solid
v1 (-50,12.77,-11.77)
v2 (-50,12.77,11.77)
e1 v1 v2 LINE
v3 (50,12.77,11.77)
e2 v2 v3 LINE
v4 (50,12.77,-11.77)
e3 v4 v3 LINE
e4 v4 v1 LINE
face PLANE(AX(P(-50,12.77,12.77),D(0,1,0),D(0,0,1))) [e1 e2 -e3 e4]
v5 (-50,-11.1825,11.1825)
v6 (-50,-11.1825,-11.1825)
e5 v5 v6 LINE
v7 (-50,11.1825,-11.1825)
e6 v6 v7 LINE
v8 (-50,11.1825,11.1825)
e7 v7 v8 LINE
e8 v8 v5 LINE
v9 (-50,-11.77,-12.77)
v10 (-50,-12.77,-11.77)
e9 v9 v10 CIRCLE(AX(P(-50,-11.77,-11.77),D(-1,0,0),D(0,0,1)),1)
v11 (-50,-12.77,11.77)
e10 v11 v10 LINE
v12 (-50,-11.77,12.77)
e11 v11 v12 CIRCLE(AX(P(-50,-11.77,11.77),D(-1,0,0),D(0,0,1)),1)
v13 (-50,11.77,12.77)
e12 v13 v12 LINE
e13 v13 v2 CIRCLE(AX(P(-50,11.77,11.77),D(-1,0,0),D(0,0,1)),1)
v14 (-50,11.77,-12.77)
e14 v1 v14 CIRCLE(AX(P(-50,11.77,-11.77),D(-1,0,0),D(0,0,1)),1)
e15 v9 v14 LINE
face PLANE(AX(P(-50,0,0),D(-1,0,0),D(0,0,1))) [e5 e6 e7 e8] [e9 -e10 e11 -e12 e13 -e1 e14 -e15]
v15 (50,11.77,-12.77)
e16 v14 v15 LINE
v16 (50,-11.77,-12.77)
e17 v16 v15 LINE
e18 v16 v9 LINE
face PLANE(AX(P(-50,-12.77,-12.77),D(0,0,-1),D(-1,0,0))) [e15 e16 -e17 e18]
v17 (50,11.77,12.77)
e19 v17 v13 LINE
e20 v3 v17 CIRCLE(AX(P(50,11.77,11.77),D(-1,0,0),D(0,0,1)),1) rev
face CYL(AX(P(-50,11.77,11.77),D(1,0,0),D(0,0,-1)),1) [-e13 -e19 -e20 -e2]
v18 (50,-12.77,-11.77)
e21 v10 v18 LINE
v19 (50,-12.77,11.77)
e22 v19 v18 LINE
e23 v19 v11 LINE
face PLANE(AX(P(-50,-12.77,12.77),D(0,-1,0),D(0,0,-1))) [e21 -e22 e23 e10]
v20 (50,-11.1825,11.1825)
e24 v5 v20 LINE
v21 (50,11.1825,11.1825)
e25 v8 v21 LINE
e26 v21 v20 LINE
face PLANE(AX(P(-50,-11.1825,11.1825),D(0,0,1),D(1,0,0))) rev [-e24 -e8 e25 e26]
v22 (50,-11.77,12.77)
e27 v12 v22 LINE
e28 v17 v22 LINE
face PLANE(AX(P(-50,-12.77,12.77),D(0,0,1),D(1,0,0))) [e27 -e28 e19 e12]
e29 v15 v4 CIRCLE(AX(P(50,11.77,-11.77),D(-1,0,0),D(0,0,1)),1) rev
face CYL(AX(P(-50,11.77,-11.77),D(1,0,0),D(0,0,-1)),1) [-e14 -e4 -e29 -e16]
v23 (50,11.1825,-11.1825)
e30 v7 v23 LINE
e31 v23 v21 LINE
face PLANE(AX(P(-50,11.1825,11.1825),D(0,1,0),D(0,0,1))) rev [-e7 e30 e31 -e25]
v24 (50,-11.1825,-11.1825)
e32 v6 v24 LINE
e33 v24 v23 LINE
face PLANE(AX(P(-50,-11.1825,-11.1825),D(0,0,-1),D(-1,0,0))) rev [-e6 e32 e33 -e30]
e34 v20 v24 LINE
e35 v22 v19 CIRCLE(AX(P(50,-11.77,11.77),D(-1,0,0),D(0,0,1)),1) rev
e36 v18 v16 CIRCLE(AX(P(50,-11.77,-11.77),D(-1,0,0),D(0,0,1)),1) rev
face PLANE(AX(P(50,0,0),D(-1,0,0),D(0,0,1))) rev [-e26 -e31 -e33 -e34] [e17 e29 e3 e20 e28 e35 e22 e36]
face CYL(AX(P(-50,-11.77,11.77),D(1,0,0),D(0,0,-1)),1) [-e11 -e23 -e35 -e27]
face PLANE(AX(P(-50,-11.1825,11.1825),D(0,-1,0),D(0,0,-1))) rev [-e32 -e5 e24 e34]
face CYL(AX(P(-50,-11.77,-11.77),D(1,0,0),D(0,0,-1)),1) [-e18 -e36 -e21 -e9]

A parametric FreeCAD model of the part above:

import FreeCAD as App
import Part
import Sketcher
from FreeCAD import Vector
Q = App.Units.Quantity


def edges_at(feature, points):
    """Names of the edges that pass closest to the given points."""
    edges = feature.Shape.Edges
    near = lambda p: min(range(len(edges)), key=lambda i: edges[i].distToShape(Part.Vertex(*p))[0])
    return sorted({f"Edge{near(p) + 1}" for p in points})

doc = App.newDocument("Part")
params = doc.addObject("Spreadsheet::Sheet", "Params")
for row, (alias, value) in enumerate([
    ("sketch1_width", "25.54 mm"),
    ("pad1_length", "50 mm"),
    ("pad1_length2", "50 mm"),
    ("fillet_radius", "1 mm"),
], start=1):
    params.set(f"A{row}", alias)
    params.set(f"B{row}", "=" + value)
    params.setAlias(f"B{row}", alias)

body = doc.addObject("PartDesign::Body", "Body")

# Sketch on YZ plane
sketch1 = body.newObject("Sketcher::SketchObject", "Sketch")
sketch1.AttachmentSupport = (doc.getObject("YZ_Plane"), [""])
sketch1.MapMode = "FlatFace"
sketch1.addGeometry(Part.LineSegment(Vector(13, 13, 0), Vector(-13, 13, 0)), False)
sketch1.addGeometry(Part.LineSegment(Vector(-13, 13, 0), Vector(-13, -13, 0)), False)
sketch1.addGeometry(Part.LineSegment(Vector(-13, -13, 0), Vector(13, -13, 0)), False)
sketch1.addGeometry(Part.LineSegment(Vector(13, -13, 0), Vector(13, 13, 0)), False)
sketch1.addGeometry(Part.LineSegment(Vector(-11, -11, 0), Vector(-11, 11, 0)), False)
sketch1.addGeometry(Part.LineSegment(Vector(-11, 11, 0), Vector(11, 11, 0)), False)
sketch1.addGeometry(Part.LineSegment(Vector(11, 11, 0), Vector(11, -11, 0)), False)
sketch1.addGeometry(Part.LineSegment(Vector(11, -11, 0), Vector(-11, -11, 0)), False)
sketch1.addConstraint(Sketcher.Constraint("Coincident", 0, 2, 1, 1))
sketch1.addConstraint(Sketcher.Constraint("Coincident", 1, 2, 2, 1))
sketch1.addConstraint(Sketcher.Constraint("Coincident", 2, 2, 3, 1))
sketch1.addConstraint(Sketcher.Constraint("Coincident", 3, 2, 0, 1))
sketch1.addConstraint(Sketcher.Constraint("Coincident", 4, 2, 5, 1))
sketch1.addConstraint(Sketcher.Constraint("Coincident", 5, 2, 6, 1))
sketch1.addConstraint(Sketcher.Constraint("Coincident", 6, 2, 7, 1))
sketch1.addConstraint(Sketcher.Constraint("Coincident", 7, 2, 4, 1))
sketch1.addConstraint(Sketcher.Constraint("Horizontal", 0))
sketch1.addConstraint(Sketcher.Constraint("Vertical", 1))
sketch1.addConstraint(Sketcher.Constraint("Horizontal", 2))
sketch1.addConstraint(Sketcher.Constraint("Vertical", 3))
sketch1.addConstraint(Sketcher.Constraint("Vertical", 4))
sketch1.addConstraint(Sketcher.Constraint("Horizontal", 5))
sketch1.addConstraint(Sketcher.Constraint("Vertical", 6))
sketch1.addConstraint(Sketcher.Constraint("Horizontal", 7))
sketch1.addConstraint(Sketcher.Constraint("Symmetric", 0, 2, 2, 2, -1, 1))
sketch1.addConstraint(Sketcher.Constraint("Symmetric", 4, 2, 6, 2, -1, 1))
sketch1.addConstraint(Sketcher.Constraint("Equal", 2, 1))
sketch1.addConstraint(Sketcher.Constraint("Equal", 7, 4))
sketch1.addConstraint(Sketcher.Constraint("DistanceX", 0, 2, 0, 1, Q("25.54 mm")))
sketch1.addConstraint(Sketcher.Constraint("DistanceX", 5, 1, 5, 2, Q("22.365 mm")))
sketch1.setExpression("Constraints[20]", "Params.sketch1_width")
pad1 = body.newObject("PartDesign::Pad", "Pad")
pad1.Profile = sketch1
pad1.Type = "TwoLengths"
pad1.setExpression("Length", "Params.pad1_length")
pad1.setExpression("Length2", "Params.pad1_length2")
doc.recompute()

fillet = body.newObject("PartDesign::Fillet", "Fillet")
fillet.Base = (pad1, edges_at(pad1, [
    (0, -12.77, -12.77),
    (0, -12.77, 12.77),
    (0, 12.77, 12.77),
    (0, 12.77, -12.77),
]))
fillet.setExpression("Radius", "Params.fillet_radius")

doc.recompute()
